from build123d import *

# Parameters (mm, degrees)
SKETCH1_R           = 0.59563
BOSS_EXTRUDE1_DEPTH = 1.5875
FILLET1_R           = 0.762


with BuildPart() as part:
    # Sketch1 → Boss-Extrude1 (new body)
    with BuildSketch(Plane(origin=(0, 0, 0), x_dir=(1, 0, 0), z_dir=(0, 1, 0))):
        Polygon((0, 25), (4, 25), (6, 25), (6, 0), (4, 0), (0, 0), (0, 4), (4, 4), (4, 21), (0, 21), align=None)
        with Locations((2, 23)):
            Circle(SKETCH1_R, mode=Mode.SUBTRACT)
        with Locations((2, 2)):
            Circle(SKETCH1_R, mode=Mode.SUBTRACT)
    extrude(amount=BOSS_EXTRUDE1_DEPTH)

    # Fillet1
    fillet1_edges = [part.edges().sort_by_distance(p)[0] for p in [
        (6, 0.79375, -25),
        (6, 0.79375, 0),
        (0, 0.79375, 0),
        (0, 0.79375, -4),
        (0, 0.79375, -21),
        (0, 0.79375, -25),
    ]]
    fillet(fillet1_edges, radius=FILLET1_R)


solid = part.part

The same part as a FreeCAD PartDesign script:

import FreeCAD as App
import Part
import Sketcher
from FreeCAD import Vector


def edges_at(feature, points):
    """Names of the edges that pass closest to the given points."""
    edges = feature.Shape.Edges
    near = lambda p: min(range(len(edges)), key=lambda i: edges[i].distToShape(Part.Vertex(*p))[0])
    return sorted({f"Edge{near(p) + 1}" for p in points})


def add_polygon(sketch, points):
    """Adds a closed chain of lines whose ends are joined by coincident constraints."""
    first, n = sketch.GeometryCount, len(points)
    for a, b in zip(points, points[1:] + points[:1]):
        sketch.addGeometry(Part.LineSegment(App.Vector(*a, 0), App.Vector(*b, 0)), False)
    for i in range(n):
        sketch.addConstraint(Sketcher.Constraint("Coincident", first + i, 2, first + (i + 1) % n, 1))

doc = App.newDocument("Part")
body = doc.addObject("PartDesign::Body", "Body")

# Sketch on XZ plane
sketch1 = body.newObject("Sketcher::SketchObject", "Sketch")
sketch1.AttachmentSupport = (doc.getObject("XZ_Plane"), [""])
sketch1.MapMode = "FlatFace"
add_polygon(sketch1, [(6, -25), (0, -25), (0, -21), (4, -21), (4, -4), (0, -4), (0, 0), (6, 0)])  # lines 0-7
sketch1.addGeometry(Part.Circle(Vector(2, -2, 0), Vector(0, 0, 1), 0.6), False)  # 8
sketch1.addGeometry(Part.Circle(Vector(2, -23, 0), Vector(0, 0, 1), 0.6), False)  # 9
sketch1.addConstraint([
    Sketcher.Constraint("Horizontal", 0),
    Sketcher.Constraint("Vertical", 1),
    Sketcher.Constraint("Horizontal", 2),
    Sketcher.Constraint("Vertical", 3),
    Sketcher.Constraint("Horizontal", 4),
    Sketcher.Constraint("Vertical", 5),
    Sketcher.Constraint("Horizontal", 6),
    Sketcher.Constraint("Vertical", 7),
    Sketcher.Constraint("Coincident", 5, 2, -1, 1),
    Sketcher.Constraint("Equal", 8, 9),
    Sketcher.Constraint("PointOnObject", 0, 2, -2),
    Sketcher.Constraint("Vertical", 8, 3, 9, 3),
    Sketcher.Constraint("Equal", 4, 1),
    Sketcher.Constraint("Equal", 1, 5),
    Sketcher.Constraint("DistanceX", 0, 2, 0, 1, 6.0),
    Sketcher.Constraint("DistanceX", 2, 1, 2, 2, 4.0),
    Sketcher.Constraint("DistanceY", 3, 1, 3, 2, 17.0),
    Sketcher.Constraint("DistanceX", -1, 1, 8, 3, 2.0),
    Sketcher.Constraint("DistanceY", 8, 3, -1, 1, 2.0),
    Sketcher.Constraint("DistanceY", 9, 3, -1, 1, 23.0),
    Sketcher.Constraint("Diameter", 8, 1.19126),
])
pad1 = body.newObject("PartDesign::Pad", "Pad")
pad1.Profile = sketch1
pad1.Length = 1.5875
pad1.Reversed = True
doc.recompute()

fillet = body.newObject("PartDesign::Fillet", "Fillet")
fillet.Base = (pad1, edges_at(pad1, [
    (6, 0.794, -25),
    (6, 0.794, 0),
    (0, 0.794, 0),
    (0, 0.794, -4),
    (0, 0.794, -21),
    (0, 0.794, -25),
]))
fillet.Radius = 0.762

doc.recompute()
